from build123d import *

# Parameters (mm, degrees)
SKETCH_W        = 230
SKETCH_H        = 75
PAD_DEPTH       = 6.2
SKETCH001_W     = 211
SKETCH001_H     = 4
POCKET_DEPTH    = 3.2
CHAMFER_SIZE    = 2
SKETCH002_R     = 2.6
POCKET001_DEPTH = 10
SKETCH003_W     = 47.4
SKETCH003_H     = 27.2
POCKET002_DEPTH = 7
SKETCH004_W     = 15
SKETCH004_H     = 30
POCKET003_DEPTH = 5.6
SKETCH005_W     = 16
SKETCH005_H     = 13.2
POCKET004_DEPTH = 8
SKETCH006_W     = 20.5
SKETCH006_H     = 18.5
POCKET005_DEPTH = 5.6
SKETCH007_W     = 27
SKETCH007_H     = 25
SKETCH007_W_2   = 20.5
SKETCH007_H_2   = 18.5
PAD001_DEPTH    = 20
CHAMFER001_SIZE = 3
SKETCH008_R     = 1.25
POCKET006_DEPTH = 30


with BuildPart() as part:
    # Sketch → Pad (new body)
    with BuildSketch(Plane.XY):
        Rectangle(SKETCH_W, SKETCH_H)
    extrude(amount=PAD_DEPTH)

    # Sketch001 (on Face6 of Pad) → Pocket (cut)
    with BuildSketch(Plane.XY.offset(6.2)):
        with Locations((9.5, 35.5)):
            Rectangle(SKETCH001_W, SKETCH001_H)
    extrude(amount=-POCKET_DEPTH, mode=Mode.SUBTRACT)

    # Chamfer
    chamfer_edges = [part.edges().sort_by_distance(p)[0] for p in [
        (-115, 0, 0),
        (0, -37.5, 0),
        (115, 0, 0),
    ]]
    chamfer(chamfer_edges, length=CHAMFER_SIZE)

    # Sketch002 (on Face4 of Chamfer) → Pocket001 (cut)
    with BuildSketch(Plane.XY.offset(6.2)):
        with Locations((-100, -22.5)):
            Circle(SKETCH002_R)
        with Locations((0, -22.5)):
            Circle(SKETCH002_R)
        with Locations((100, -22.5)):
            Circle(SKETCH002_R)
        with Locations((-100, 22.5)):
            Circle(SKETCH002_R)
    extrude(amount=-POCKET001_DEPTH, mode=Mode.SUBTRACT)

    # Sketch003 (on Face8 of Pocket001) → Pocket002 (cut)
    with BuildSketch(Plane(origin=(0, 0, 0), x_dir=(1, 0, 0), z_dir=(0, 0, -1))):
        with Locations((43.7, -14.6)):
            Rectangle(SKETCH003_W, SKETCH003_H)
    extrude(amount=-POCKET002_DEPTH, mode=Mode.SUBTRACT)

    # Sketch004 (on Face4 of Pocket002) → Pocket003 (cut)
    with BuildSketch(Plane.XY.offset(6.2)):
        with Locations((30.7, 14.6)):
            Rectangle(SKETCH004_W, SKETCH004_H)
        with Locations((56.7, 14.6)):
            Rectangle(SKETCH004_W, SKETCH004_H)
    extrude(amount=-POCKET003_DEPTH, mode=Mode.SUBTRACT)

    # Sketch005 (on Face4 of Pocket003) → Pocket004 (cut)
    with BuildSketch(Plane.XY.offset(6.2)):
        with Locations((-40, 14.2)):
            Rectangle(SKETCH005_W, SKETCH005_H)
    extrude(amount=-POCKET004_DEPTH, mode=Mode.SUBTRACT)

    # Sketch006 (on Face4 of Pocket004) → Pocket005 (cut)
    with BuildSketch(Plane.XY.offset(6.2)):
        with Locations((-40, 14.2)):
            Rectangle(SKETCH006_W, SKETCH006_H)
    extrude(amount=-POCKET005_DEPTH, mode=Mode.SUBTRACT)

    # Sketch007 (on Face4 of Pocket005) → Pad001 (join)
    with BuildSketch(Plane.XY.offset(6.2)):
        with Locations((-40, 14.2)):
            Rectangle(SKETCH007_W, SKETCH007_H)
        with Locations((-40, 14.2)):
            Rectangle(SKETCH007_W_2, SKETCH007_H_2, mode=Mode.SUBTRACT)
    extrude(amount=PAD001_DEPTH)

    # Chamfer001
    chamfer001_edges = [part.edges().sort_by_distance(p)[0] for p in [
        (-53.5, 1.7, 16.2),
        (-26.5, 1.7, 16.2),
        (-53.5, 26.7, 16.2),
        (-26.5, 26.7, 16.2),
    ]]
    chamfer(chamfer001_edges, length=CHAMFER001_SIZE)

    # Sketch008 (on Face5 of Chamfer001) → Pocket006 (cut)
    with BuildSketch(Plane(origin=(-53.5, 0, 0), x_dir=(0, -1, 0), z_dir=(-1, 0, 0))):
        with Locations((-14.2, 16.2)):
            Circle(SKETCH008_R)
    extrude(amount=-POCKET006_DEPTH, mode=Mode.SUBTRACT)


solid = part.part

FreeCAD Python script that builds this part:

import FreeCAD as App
import Part
import Sketcher
from FreeCAD import Vector
Q = App.Units.Quantity


def edges_at(feature, points):
    """Names of the edges that pass closest to the given points."""
    edges = feature.Shape.Edges
    near = lambda p: min(range(len(edges)), key=lambda i: edges[i].distToShape(Part.Vertex(*p))[0])
    return sorted({f"Edge{near(p) + 1}" for p in points})


def add_polygon(sketch, points):
    """Adds a closed chain of lines whose ends are joined by coincident constraints."""
    first, n = sketch.GeometryCount, len(points)
    for a, b in zip(points, points[1:] + points[:1]):
        sketch.addGeometry(Part.LineSegment(App.Vector(*a, 0), App.Vector(*b, 0)), False)
    for i in range(n):
        sketch.addConstraint(Sketcher.Constraint("Coincident", first + i, 2, first + (i + 1) % n, 1))

doc = App.newDocument("Part")
body = doc.addObject("PartDesign::Body", "Body")

sketch1 = body.newObject("Sketcher::SketchObject", "Sketch")
sketch1.AttachmentSupport = (doc.getObject("XY_Plane"), [""])
sketch1.MapMode = "FlatFace"
add_polygon(sketch1, [(-115, 38), (-115, -38), (115, -38), (115, 38)])
sketch1.addConstraint(Sketcher.Constraint("Vertical", 0))
sketch1.addConstraint(Sketcher.Constraint("Horizontal", 1))
sketch1.addConstraint(Sketcher.Constraint("Vertical", 2))
sketch1.addConstraint(Sketcher.Constraint("Horizontal", 3))
sketch1.addConstraint(Sketcher.Constraint("Symmetric", 0, 2, 2, 2, -1, 1))
sketch1.addConstraint(Sketcher.Constraint("DistanceX", 1, 1, 1, 2, Q("230 mm")))
sketch1.addConstraint(Sketcher.Constraint("DistanceY", 0, 2, 0, 1, Q("75 mm")))
pad1 = body.newObject("PartDesign::Pad", "Pad")
pad1.Profile = sketch1
pad1.Length = 6.2

sketch2 = body.newObject("Sketcher::SketchObject", "Sketch001")
sketch2.AttachmentSupport = (doc.getObject("XY_Plane"), [""])
sketch2.MapMode = "FlatFace"
sketch2.AttachmentOffset = App.Placement(Vector(0, 0, 6.2), App.Rotation())
add_polygon(sketch2, [(-96, 37.5), (-96, 33.5), (115, 33.5), (115, 37.5)])
sketch2.addConstraint(Sketcher.Constraint("Vertical", 0))
sketch2.addConstraint(Sketcher.Constraint("Horizontal", 1))
sketch2.addConstraint(Sketcher.Constraint("Vertical", 2))
sketch2.addConstraint(Sketcher.Constraint("Horizontal", 3))
sketch2.addConstraint(Sketcher.Constraint("DistanceX", 1, 1, 1, 2, Q("211 mm")))
sketch2.addConstraint(Sketcher.Constraint("DistanceY", 0, 2, 0, 1, Q("4 mm")))
sketch2.addConstraint(Sketcher.Constraint("DistanceX", 0, 2, -1, 1, Q("96 mm")))
sketch2.addConstraint(Sketcher.Constraint("DistanceY", -1, 1, 0, 2, Q("33.5 mm")))
pocket1 = body.newObject("PartDesign::Pocket", "Pocket")
pocket1.Profile = sketch2
pocket1.Length = 3.2
doc.recompute()

chamfer = body.newObject("PartDesign::Chamfer", "Chamfer")
chamfer.Base = (pocket1, edges_at(pocket1, [(-115, 0, 0), (0, -37.5, 0), (115, 0, 0)]))
chamfer.Size = 2

sketch3 = body.newObject("Sketcher::SketchObject", "Sketch002")
sketch3.AttachmentSupport = (doc.getObject("XY_Plane"), [""])
sketch3.MapMode = "FlatFace"
sketch3.AttachmentOffset = App.Placement(Vector(0, 0, 6.2), App.Rotation())
sketch3.addGeometry(Part.Circle(Vector(-100, -22.5, 0), Vector(0, 0, 1), 2.6), False)
sketch3.addGeometry(Part.Circle(Vector(0, -22.5, 0), Vector(0, 0, 1), 2.6), False)
sketch3.addGeometry(Part.Circle(Vector(100, -22.5, 0), Vector(0, 0, 1), 2.6), False)
sketch3.addGeometry(Part.Circle(Vector(-100, 22.5, 0), Vector(0, 0, 1), 2.6), False)
sketch3.addConstraint(Sketcher.Constraint("Equal", 0, 1))
sketch3.addConstraint(Sketcher.Constraint("Equal", 1, 2))
sketch3.addConstraint(Sketcher.Constraint("Equal", 2, 3))
sketch3.addConstraint(Sketcher.Constraint("Symmetric", 2, 3, 3, 3, -1, 1))
sketch3.addConstraint(Sketcher.Constraint("Symmetric", 0, 3, 2, 3, -2))
sketch3.addConstraint(Sketcher.Constraint("PointOnObject", 1, 3, -2))
sketch3.addConstraint(Sketcher.Constraint("Horizontal", 0, 3, 1, 3))
sketch3.addConstraint(Sketcher.Constraint("Diameter", 0, Q("5.2 mm")))
sketch3.addConstraint(Sketcher.Constraint("DistanceX", 0, 3, -1, 1, Q("100 mm")))
sketch3.addConstraint(Sketcher.Constraint("DistanceY", 0, 3, 3, 3, Q("45 mm")))
pocket2 = body.newObject("PartDesign::Pocket", "Pocket001")
pocket2.Profile = sketch3
pocket2.Length = 10

sketch4 = body.newObject("Sketcher::SketchObject", "Sketch003")
sketch4.AttachmentSupport = (doc.getObject("XY_Plane"), [""])
sketch4.MapMode = "FlatFace"
add_polygon(sketch4, [(20, 1), (20, 28), (67, 28), (67, 1)])
sketch4.addConstraint(Sketcher.Constraint("Vertical", 0))
sketch4.addConstraint(Sketcher.Constraint("Horizontal", 1))
sketch4.addConstraint(Sketcher.Constraint("Vertical", 2))
sketch4.addConstraint(Sketcher.Constraint("Horizontal", 3))
sketch4.addConstraint(Sketcher.Constraint("DistanceX", 1, 1, 1, 2, Q("47.4 mm")))
sketch4.addConstraint(Sketcher.Constraint("DistanceY", 0, 1, 0, 2, Q("27.2 mm")))
sketch4.addConstraint(Sketcher.Constraint("DistanceX", -1, 1, 0, 2, Q("20 mm")))
sketch4.addConstraint(Sketcher.Constraint("DistanceY", -1, 1, 2, 2, Q("1 mm")))
pocket3 = body.newObject("PartDesign::Pocket", "Pocket002")
pocket3.Profile = sketch4
pocket3.Length = 7
pocket3.Reversed = True

sketch5 = body.newObject("Sketcher::SketchObject", "Sketch004")
sketch5.AttachmentSupport = (doc.getObject("XY_Plane"), [""])
sketch5.MapMode = "FlatFace"
sketch5.AttachmentOffset = App.Placement(Vector(0, 0, 6.2), App.Rotation())
add_polygon(sketch5, [(23, 30), (23, 0), (38, 0), (38, 30)])
add_polygon(sketch5, [(49, 30), (49, 0), (64, 0), (64, 30)])
sketch5.addConstraint(Sketcher.Constraint("Vertical", 0))
sketch5.addConstraint(Sketcher.Constraint("Horizontal", 1))
sketch5.addConstraint(Sketcher.Constraint("Vertical", 2))
sketch5.addConstraint(Sketcher.Constraint("Horizontal", 3))
sketch5.addConstraint(Sketcher.Constraint("Vertical", 4))
sketch5.addConstraint(Sketcher.Constraint("Horizontal", 5))
sketch5.addConstraint(Sketcher.Constraint("Vertical", 6))
sketch5.addConstraint(Sketcher.Constraint("Horizontal", 7))
sketch5.addConstraint(Sketcher.Constraint("Horizontal", 1, 2, 4, 2))
sketch5.addConstraint(Sketcher.Constraint("Horizontal", 3, 2, 6, 2))
sketch5.addConstraint(Sketcher.Constraint("Equal", 3, 5))
sketch5.addConstraint(Sketcher.Constraint("DistanceX", 1, 1, 1, 2, Q("15 mm")))
sketch5.addConstraint(Sketcher.Constraint("DistanceY", 0, 2, 0, 1, Q("30 mm")))
sketch5.addConstraint(Sketcher.Constraint("DistanceX", 1, 2, 4, 2, Q("11 mm")))
sketch5.addConstraint(Sketcher.Constraint("DistanceX", -1, 1, 0, 2, Q("23.2 mm")))
sketch5.addConstraint(Sketcher.Constraint("DistanceY", 0, 2, -1, 1, Q("0.4 mm")))
pocket4 = body.newObject("PartDesign::Pocket", "Pocket003")
pocket4.Profile = sketch5
pocket4.Length = 5.6

sketch6 = body.newObject("Sketcher::SketchObject", "Sketch005")
sketch6.AttachmentSupport = (doc.getObject("XY_Plane"), [""])
sketch6.MapMode = "FlatFace"
sketch6.AttachmentOffset = App.Placement(Vector(0, 0, 6.2), App.Rotation())
add_polygon(sketch6, [(-48, 21), (-48, 8), (-32, 8), (-32, 21)])
sketch6.addConstraint(Sketcher.Constraint("Vertical", 0))
sketch6.addConstraint(Sketcher.Constraint("Horizontal", 1))
sketch6.addConstraint(Sketcher.Constraint("Vertical", 2))
sketch6.addConstraint(Sketcher.Constraint("Horizontal", 3))
sketch6.addConstraint(Sketcher.Constraint("DistanceX", 1, 1, 1, 2, Q("16 mm")))
sketch6.addConstraint(Sketcher.Constraint("DistanceY", 0, 2, 0, 1, Q("13.2 mm")))
sketch6.addConstraint(Sketcher.Constraint("DistanceX", 0, 2, -1, 1, Q("48 mm")))
sketch6.addConstraint(Sketcher.Constraint("DistanceY", -1, 1, 0, 2, Q("7.6 mm")))
pocket5 = body.newObject("PartDesign::Pocket", "Pocket004")
pocket5.Profile = sketch6
pocket5.Length = 8

sketch7 = body.newObject("Sketcher::SketchObject", "Sketch006")
sketch7.AttachmentSupport = (doc.getObject("XY_Plane"), [""])
sketch7.MapMode = "FlatFace"
sketch7.AttachmentOffset = App.Placement(Vector(0, 0, 6.2), App.Rotation())
add_polygon(sketch7, [(-50, 23), (-50, 5), (-30, 5), (-30, 23)])
sketch7.addConstraint(Sketcher.Constraint("Vertical", 0))
sketch7.addConstraint(Sketcher.Constraint("Horizontal", 1))
sketch7.addConstraint(Sketcher.Constraint("Vertical", 2))
sketch7.addConstraint(Sketcher.Constraint("Horizontal", 3))
sketch7.addConstraint(Sketcher.Constraint("DistanceX", 1, 1, 1, 2, Q("20.5 mm")))
sketch7.addConstraint(Sketcher.Constraint("DistanceY", 0, 2, 0, 1, Q("18.5 mm")))
sketch7.addConstraint(Sketcher.Constraint("DistanceX", 0, 2, -1, 1, Q("50.25 mm")))
sketch7.addConstraint(Sketcher.Constraint("DistanceY", -1, 1, 0, 2, Q("4.95 mm")))
pocket6 = body.newObject("PartDesign::Pocket", "Pocket005")
pocket6.Profile = sketch7
pocket6.Length = 5.6

sketch8 = body.newObject("Sketcher::SketchObject", "Sketch007")
sketch8.AttachmentSupport = (doc.getObject("XY_Plane"), [""])
sketch8.MapMode = "FlatFace"
sketch8.AttachmentOffset = App.Placement(Vector(0, 0, 6.2), App.Rotation())
add_polygon(sketch8, [(-54, 27), (-54, 2), (-26, 2), (-26, 27)])
add_polygon(sketch8, [(-30, 5), (-50, 5), (-50, 23), (-30, 23)])
sketch8.addConstraint(Sketcher.Constraint("Vertical", 0))
sketch8.addConstraint(Sketcher.Constraint("Horizontal", 1))
sketch8.addConstraint(Sketcher.Constraint("Vertical", 2))
sketch8.addConstraint(Sketcher.Constraint("Horizontal", 3))
sketch8.addConstraint(Sketcher.Constraint("Horizontal", 4))
sketch8.addConstraint(Sketcher.Constraint("Vertical", 5))
sketch8.addConstraint(Sketcher.Constraint("Horizontal", 6))
sketch8.addConstraint(Sketcher.Constraint("Vertical", 7))
sketch8.addConstraint(Sketcher.Constraint("DistanceX", 1, 1, 1, 2, Q("27 mm")))
sketch8.addConstraint(Sketcher.Constraint("DistanceY", 0, 2, 0, 1, Q("25 mm")))
sketch8.addConstraint(Sketcher.Constraint("DistanceX", 4, 2, 4, 1, Q("20.5 mm")))
sketch8.addConstraint(Sketcher.Constraint("DistanceY", 5, 1, 5, 2, Q("18.5 mm")))
sketch8.addConstraint(Sketcher.Constraint("DistanceX", 0, 2, -1, 1, Q("53.5 mm")))
sketch8.addConstraint(Sketcher.Constraint("DistanceY", -1, 1, 0, 2, Q("1.7 mm")))
sketch8.addConstraint(Sketcher.Constraint("DistanceX", 4, 2, -1, 1, Q("50.25 mm")))
sketch8.addConstraint(Sketcher.Constraint("DistanceY", -1, 1, 4, 2, Q("4.95 mm")))
pad2 = body.newObject("PartDesign::Pad", "Pad001")
pad2.Profile = sketch8
pad2.Length = 20
doc.recompute()

chamfer2 = body.newObject("PartDesign::Chamfer", "Chamfer001")
chamfer2.Base = (pad2, edges_at(pad2, [
    (-53.5, 1.7, 16.2),
    (-26.5, 1.7, 16.2),
    (-53.5, 26.7, 16.2),
    (-26.5, 26.7, 16.2),
]))
chamfer2.Size = 3

sketch9 = body.newObject("Sketcher::SketchObject", "Sketch008")
sketch9.AttachmentSupport = (doc.getObject("YZ_Plane"), [""])
sketch9.MapMode = "FlatFace"
sketch9.AttachmentOffset = App.Placement(Vector(0, 0, -53.5), App.Rotation())
sketch9.addGeometry(Part.Circle(Vector(14.2, 16.2, 0), Vector(0, 0, 1), 1.2), False)
sketch9.addConstraint(Sketcher.Constraint("Diameter", 0, Q("2.5 mm")))
sketch9.addConstraint(Sketcher.Constraint("DistanceX", -1, 1, 0, 3, Q("14.2 mm")))
sketch9.addConstraint(Sketcher.Constraint("DistanceY", -1, 1, 0, 3, Q("16.2 mm")))
pocket7 = body.newObject("PartDesign::Pocket", "Pocket006")
pocket7.Profile = sketch9
pocket7.Length = 30
pocket7.Reversed = True

doc.recompute()
